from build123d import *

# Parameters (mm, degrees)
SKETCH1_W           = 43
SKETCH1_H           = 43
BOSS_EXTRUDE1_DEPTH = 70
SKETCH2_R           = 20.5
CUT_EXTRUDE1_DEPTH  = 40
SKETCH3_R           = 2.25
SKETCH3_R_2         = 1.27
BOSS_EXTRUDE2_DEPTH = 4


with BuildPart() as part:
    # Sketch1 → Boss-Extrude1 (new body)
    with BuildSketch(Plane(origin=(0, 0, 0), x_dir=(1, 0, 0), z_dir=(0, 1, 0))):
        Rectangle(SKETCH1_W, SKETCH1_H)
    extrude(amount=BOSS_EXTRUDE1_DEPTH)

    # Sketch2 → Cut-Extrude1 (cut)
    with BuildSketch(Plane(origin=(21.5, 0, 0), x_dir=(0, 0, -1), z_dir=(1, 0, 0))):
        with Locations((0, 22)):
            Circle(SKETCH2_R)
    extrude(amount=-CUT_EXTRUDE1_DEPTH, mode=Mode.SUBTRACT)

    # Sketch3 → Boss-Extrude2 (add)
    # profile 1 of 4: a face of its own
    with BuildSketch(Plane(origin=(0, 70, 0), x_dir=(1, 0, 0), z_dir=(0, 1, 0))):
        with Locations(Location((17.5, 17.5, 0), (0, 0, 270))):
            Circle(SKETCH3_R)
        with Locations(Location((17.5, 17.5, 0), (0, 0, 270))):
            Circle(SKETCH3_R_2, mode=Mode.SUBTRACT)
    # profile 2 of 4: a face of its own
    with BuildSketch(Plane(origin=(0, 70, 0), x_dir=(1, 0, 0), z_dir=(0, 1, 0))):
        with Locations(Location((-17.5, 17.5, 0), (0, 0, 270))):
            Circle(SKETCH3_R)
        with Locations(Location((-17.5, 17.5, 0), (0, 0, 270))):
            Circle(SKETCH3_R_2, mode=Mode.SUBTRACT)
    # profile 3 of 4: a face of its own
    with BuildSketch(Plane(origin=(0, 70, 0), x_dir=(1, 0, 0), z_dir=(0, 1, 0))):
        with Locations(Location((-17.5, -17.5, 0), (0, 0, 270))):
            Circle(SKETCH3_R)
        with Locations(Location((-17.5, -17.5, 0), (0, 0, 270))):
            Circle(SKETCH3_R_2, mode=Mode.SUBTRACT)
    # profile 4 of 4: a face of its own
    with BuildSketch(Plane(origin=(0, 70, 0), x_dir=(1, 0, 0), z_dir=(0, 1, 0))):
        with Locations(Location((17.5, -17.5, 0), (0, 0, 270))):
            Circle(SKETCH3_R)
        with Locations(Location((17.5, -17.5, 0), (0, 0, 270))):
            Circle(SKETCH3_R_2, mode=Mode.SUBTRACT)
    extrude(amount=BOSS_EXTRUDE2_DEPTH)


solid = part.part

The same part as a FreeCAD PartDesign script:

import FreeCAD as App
import Part
import Sketcher
from FreeCAD import Vector
Q = App.Units.Quantity

doc = App.newDocument("Part")
body = doc.addObject("PartDesign::Body", "Body")

# Sketch on XZ plane
sketch1 = body.newObject("Sketcher::SketchObject", "Sketch")
sketch1.AttachmentSupport = (doc.getObject("XZ_Plane"), [""])
sketch1.MapMode = "FlatFace"
sketch1.addGeometry([
    Part.LineSegment(Vector(-22, -22, 0), Vector(-22, 22, 0)),
    Part.LineSegment(Vector(-22, 22, 0), Vector(22, 22, 0)),
    Part.LineSegment(Vector(22, 22, 0), Vector(22, -22, 0)),
    Part.LineSegment(Vector(22, -22, 0), Vector(-22, -22, 0)),
], False)
sketch1.addConstraint([
    Sketcher.Constraint("Coincident", 0, 2, 1, 1),
    Sketcher.Constraint("Coincident", 1, 2, 2, 1),
    Sketcher.Constraint("Coincident", 2, 2, 3, 1),
    Sketcher.Constraint("Coincident", 3, 2, 0, 1),
    Sketcher.Constraint("Vertical", 0),
    Sketcher.Constraint("Horizontal", 1),
    Sketcher.Constraint("Vertical", 2),
    Sketcher.Constraint("Horizontal", 3),
    Sketcher.Constraint("Symmetric", 0, 2, 2, 2, -1, 1),
    Sketcher.Constraint("Equal", 3, 0),
    Sketcher.Constraint("DistanceX", 1, 1, 1, 2, Q("43 mm")),
])
pad1 = body.newObject("PartDesign::Pad", "Pad")
pad1.Profile = sketch1
pad1.Length = 70
pad1.Reversed = True

# Sketch on YZ plane
sketch2 = body.newObject("Sketcher::SketchObject", "Sketch001")
sketch2.AttachmentSupport = (doc.getObject("YZ_Plane"), [""])
sketch2.MapMode = "FlatFace"
sketch2.AttachmentOffset = App.Placement(Vector(0, 0, 21.5), App.Rotation())
sketch2.addGeometry(Part.Circle(Vector(22, 0, 0), Vector(0, 0, 1), 20), False)
sketch2.addConstraint([
    Sketcher.Constraint("PointOnObject", 0, 3, -1),
    Sketcher.Constraint("Diameter", 0, Q("41 mm")),
    Sketcher.Constraint("DistanceX", -1, 1, 0, 3, Q("22 mm")),
])
pocket1 = body.newObject("PartDesign::Pocket", "Pocket")
pocket1.Profile = sketch2
pocket1.Length = 40

# Sketch on XZ plane
sketch3 = body.newObject("Sketcher::SketchObject", "Sketch002")
sketch3.AttachmentSupport = (doc.getObject("XZ_Plane"), [""])
sketch3.MapMode = "FlatFace"
sketch3.AttachmentOffset = App.Placement(Vector(0, 0, -70), App.Rotation())
sketch3.addGeometry([
    Part.Circle(Vector(17.5, -17.5, 0), Vector(0, 0, 1), 2.2),  # 0
    Part.Circle(Vector(17.5, -17.5, 0), Vector(0, 0, 1), 1.3),  # 1
    Part.Circle(Vector(-17.5, -17.5, 0), Vector(0, 0, 1), 2.2),  # 2
    Part.Circle(Vector(-17.5, -17.5, 0), Vector(0, 0, 1), 1.3),  # 3
    Part.Circle(Vector(-17.5, 17.5, 0), Vector(0, 0, 1), 2.2),  # 4
    Part.Circle(Vector(-17.5, 17.5, 0), Vector(0, 0, 1), 1.3),  # 5
    Part.Circle(Vector(17.5, 17.5, 0), Vector(0, 0, 1), 2.2),  # 6
    Part.Circle(Vector(17.5, 17.5, 0), Vector(0, 0, 1), 1.3),  # 7
], False)
sketch3.addConstraint([
    Sketcher.Constraint("Coincident", 1, 3, 0, 3),
    Sketcher.Constraint("Coincident", 3, 3, 2, 3),
    Sketcher.Constraint("Coincident", 5, 3, 4, 3),
    Sketcher.Constraint("Coincident", 7, 3, 6, 3),
    Sketcher.Constraint("Equal", 0, 2),
    Sketcher.Constraint("Equal", 1, 3),
    Sketcher.Constraint("Equal", 2, 4),
    Sketcher.Constraint("Equal", 3, 5),
    Sketcher.Constraint("Equal", 4, 6),
    Sketcher.Constraint("Equal", 5, 7),
    Sketcher.Constraint("Symmetric", 0, 3, 4, 3, -1, 1),
    Sketcher.Constraint("Symmetric", 2, 3, 6, 3, -1, 1),
    Sketcher.Constraint("Symmetric", 0, 3, 2, 3, -2),
    Sketcher.Constraint("Diameter", 0, Q("4.5 mm")),
    Sketcher.Constraint("Diameter", 1, Q("2.54 mm")),
    Sketcher.Constraint("DistanceX", 2, 3, 0, 3, Q("35 mm")),
    Sketcher.Constraint("DistanceY", 2, 3, 4, 3, Q("35 mm")),
])
pad2 = body.newObject("PartDesign::Pad", "Pad001")
pad2.Profile = sketch3
pad2.Length = 4
pad2.Reversed = True

doc.recompute()
